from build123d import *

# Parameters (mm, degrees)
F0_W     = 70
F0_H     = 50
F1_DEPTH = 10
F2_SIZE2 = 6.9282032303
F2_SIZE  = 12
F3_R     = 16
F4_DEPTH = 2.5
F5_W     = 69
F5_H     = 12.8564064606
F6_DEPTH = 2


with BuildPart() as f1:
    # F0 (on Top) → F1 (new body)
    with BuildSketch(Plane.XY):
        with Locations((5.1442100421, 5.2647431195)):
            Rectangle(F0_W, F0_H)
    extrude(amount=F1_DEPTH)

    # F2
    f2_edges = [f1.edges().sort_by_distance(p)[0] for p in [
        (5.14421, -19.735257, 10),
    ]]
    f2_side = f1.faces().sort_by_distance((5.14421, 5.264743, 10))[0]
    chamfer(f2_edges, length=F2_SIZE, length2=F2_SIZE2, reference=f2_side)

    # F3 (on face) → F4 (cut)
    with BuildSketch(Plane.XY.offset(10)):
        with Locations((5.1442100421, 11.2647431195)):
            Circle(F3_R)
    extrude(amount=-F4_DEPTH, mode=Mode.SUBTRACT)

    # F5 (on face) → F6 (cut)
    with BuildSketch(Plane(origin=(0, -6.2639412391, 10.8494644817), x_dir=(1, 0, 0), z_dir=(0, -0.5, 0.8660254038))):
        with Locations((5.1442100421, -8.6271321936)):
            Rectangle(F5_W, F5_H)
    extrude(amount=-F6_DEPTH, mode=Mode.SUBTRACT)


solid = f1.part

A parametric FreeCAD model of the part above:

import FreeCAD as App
import Part
import Sketcher
from FreeCAD import Vector


def edges_at(feature, points):
    """Names of the edges that pass closest to the given points."""
    edges = feature.Shape.Edges
    near = lambda p: min(range(len(edges)), key=lambda i: edges[i].distToShape(Part.Vertex(*p))[0])
    return sorted({f"Edge{near(p) + 1}" for p in points})

doc = App.newDocument("Part")
params = doc.addObject("Spreadsheet::Sheet", "Params")
for row, (alias, value) in enumerate([
    ("sketch1_width", "70 mm"),
    ("sketch1_height", "50 mm"),
    ("pad1_length", "10 mm"),
    ("chamfer_size", "12 mm"),
    ("chamfer_size2", "6.928203 mm"),
    ("sketch2_diameter", "32 mm"),
    ("pocket1_length", "2.5 mm"),
    ("sketch3_width", "69 mm"),
    ("pocket2_length", "2 mm"),
], start=1):
    params.set(f"A{row}", alias)
    params.set(f"B{row}", "=" + value)
    params.setAlias(f"B{row}", alias)

body = doc.addObject("PartDesign::Body", "Body")

sketch1 = body.newObject("Sketcher::SketchObject", "Sketch")
sketch1.AttachmentSupport = (doc.getObject("XY_Plane"), [""])
sketch1.MapMode = "FlatFace"
sketch1.addGeometry(Part.LineSegment(Vector(-29.85579, 30.264743, 0), Vector(-29.85579, -19.735257, 0)), False)
sketch1.addGeometry(Part.LineSegment(Vector(-29.85579, -19.735257, 0), Vector(40.14421, -19.735257, 0)), False)
sketch1.addGeometry(Part.LineSegment(Vector(40.14421, -19.735257, 0), Vector(40.14421, 30.264743, 0)), False)
sketch1.addGeometry(Part.LineSegment(Vector(40.14421, 30.264743, 0), Vector(-29.85579, 30.264743, 0)), False)
sketch1.addConstraint(Sketcher.Constraint("Coincident", 0, 2, 1, 1))
sketch1.addConstraint(Sketcher.Constraint("Coincident", 1, 2, 2, 1))
sketch1.addConstraint(Sketcher.Constraint("Coincident", 2, 2, 3, 1))
sketch1.addConstraint(Sketcher.Constraint("Coincident", 3, 2, 0, 1))
sketch1.addConstraint(Sketcher.Constraint("Vertical", 0))
sketch1.addConstraint(Sketcher.Constraint("Horizontal", 1))
sketch1.addConstraint(Sketcher.Constraint("Vertical", 2))
sketch1.addConstraint(Sketcher.Constraint("Horizontal", 3))
sketch1.addConstraint(Sketcher.Constraint("DistanceX", 1, 1, 1, 2, 70.0))
sketch1.addConstraint(Sketcher.Constraint("DistanceY", 0, 2, 0, 1, 50.0))
sketch1.addConstraint(Sketcher.Constraint("DistanceX", 0, 2, -1, 1, 29.85579))
sketch1.addConstraint(Sketcher.Constraint("DistanceY", 0, 2, -1, 1, 19.735257))
sketch1.setExpression("Constraints[8]", "Params.sketch1_width")
sketch1.setExpression("Constraints[9]", "Params.sketch1_height")
pad1 = body.newObject("PartDesign::Pad", "Pad")
pad1.Profile = sketch1
pad1.setExpression("Length", "Params.pad1_length")
doc.recompute()

chamfer = body.newObject("PartDesign::Chamfer", "Chamfer")
chamfer.Base = (pad1, edges_at(pad1, [(5.144, -19.735, 10)]))
chamfer.ChamferType = "Two distances"
chamfer.setExpression("Size", "Params.chamfer_size")
chamfer.setExpression("Size2", "Params.chamfer_size2")
chamfer.FlipDirection = True

sketch2 = body.newObject("Sketcher::SketchObject", "Sketch001")
sketch2.AttachmentSupport = (doc.getObject("XY_Plane"), [""])
sketch2.MapMode = "FlatFace"
sketch2.AttachmentOffset = App.Placement(Vector(0, 0, 10), App.Rotation())
sketch2.addGeometry(Part.Circle(Vector(5.14421, 11.264743, 0), Vector(0, 0, 1), 16), False)
sketch2.addConstraint(Sketcher.Constraint("Diameter", 0, 32.0))
sketch2.addConstraint(Sketcher.Constraint("DistanceX", -1, 1, 0, 3, 5.14421))
sketch2.addConstraint(Sketcher.Constraint("DistanceY", -1, 1, 0, 3, 11.264743))
sketch2.setExpression("Constraints[0]", "Params.sketch2_diameter")
pocket1 = body.newObject("PartDesign::Pocket", "Pocket")
pocket1.Profile = sketch2
pocket1.setExpression("Length", "Params.pocket1_length")

sketch3 = body.newObject("Sketcher::SketchObject", "Sketch002")
sketch3.Placement = App.Placement(Vector(0, -6.263941, 10.849464), App.Rotation(Vector(1, 0, 0), Vector(0, 0.866025404, 0.5), Vector(0, -0.5, 0.866025404), "ZXY"))
sketch3.addGeometry(Part.LineSegment(Vector(-29.35579, -2.198929, 0), Vector(-29.35579, -15.055335, 0)), False)
sketch3.addGeometry(Part.LineSegment(Vector(-29.35579, -15.055335, 0), Vector(39.64421, -15.055335, 0)), False)
sketch3.addGeometry(Part.LineSegment(Vector(39.64421, -15.055335, 0), Vector(39.64421, -2.198929, 0)), False)
sketch3.addGeometry(Part.LineSegment(Vector(39.64421, -2.198929, 0), Vector(-29.35579, -2.198929, 0)), False)
sketch3.addConstraint(Sketcher.Constraint("Coincident", 0, 2, 1, 1))
sketch3.addConstraint(Sketcher.Constraint("Coincident", 1, 2, 2, 1))
sketch3.addConstraint(Sketcher.Constraint("Coincident", 2, 2, 3, 1))
sketch3.addConstraint(Sketcher.Constraint("Coincident", 3, 2, 0, 1))
sketch3.addConstraint(Sketcher.Constraint("Vertical", 0))
sketch3.addConstraint(Sketcher.Constraint("Horizontal", 1))
sketch3.addConstraint(Sketcher.Constraint("Vertical", 2))
sketch3.addConstraint(Sketcher.Constraint("Horizontal", 3))
sketch3.addConstraint(Sketcher.Constraint("DistanceX", 1, 1, 1, 2, 69.0))
sketch3.addConstraint(Sketcher.Constraint("DistanceY", 0, 2, 0, 1, 12.856406))
sketch3.addConstraint(Sketcher.Constraint("DistanceX", 0, 2, -1, 1, 29.35579))
sketch3.addConstraint(Sketcher.Constraint("DistanceY", 2, 2, -1, 1, 2.198929))
sketch3.setExpression("Constraints[8]", "Params.sketch3_width")
pocket2 = body.newObject("PartDesign::Pocket", "Pocket001")
pocket2.Profile = sketch3
pocket2.setExpression("Length", "Params.pocket2_length")

doc.recompute()
